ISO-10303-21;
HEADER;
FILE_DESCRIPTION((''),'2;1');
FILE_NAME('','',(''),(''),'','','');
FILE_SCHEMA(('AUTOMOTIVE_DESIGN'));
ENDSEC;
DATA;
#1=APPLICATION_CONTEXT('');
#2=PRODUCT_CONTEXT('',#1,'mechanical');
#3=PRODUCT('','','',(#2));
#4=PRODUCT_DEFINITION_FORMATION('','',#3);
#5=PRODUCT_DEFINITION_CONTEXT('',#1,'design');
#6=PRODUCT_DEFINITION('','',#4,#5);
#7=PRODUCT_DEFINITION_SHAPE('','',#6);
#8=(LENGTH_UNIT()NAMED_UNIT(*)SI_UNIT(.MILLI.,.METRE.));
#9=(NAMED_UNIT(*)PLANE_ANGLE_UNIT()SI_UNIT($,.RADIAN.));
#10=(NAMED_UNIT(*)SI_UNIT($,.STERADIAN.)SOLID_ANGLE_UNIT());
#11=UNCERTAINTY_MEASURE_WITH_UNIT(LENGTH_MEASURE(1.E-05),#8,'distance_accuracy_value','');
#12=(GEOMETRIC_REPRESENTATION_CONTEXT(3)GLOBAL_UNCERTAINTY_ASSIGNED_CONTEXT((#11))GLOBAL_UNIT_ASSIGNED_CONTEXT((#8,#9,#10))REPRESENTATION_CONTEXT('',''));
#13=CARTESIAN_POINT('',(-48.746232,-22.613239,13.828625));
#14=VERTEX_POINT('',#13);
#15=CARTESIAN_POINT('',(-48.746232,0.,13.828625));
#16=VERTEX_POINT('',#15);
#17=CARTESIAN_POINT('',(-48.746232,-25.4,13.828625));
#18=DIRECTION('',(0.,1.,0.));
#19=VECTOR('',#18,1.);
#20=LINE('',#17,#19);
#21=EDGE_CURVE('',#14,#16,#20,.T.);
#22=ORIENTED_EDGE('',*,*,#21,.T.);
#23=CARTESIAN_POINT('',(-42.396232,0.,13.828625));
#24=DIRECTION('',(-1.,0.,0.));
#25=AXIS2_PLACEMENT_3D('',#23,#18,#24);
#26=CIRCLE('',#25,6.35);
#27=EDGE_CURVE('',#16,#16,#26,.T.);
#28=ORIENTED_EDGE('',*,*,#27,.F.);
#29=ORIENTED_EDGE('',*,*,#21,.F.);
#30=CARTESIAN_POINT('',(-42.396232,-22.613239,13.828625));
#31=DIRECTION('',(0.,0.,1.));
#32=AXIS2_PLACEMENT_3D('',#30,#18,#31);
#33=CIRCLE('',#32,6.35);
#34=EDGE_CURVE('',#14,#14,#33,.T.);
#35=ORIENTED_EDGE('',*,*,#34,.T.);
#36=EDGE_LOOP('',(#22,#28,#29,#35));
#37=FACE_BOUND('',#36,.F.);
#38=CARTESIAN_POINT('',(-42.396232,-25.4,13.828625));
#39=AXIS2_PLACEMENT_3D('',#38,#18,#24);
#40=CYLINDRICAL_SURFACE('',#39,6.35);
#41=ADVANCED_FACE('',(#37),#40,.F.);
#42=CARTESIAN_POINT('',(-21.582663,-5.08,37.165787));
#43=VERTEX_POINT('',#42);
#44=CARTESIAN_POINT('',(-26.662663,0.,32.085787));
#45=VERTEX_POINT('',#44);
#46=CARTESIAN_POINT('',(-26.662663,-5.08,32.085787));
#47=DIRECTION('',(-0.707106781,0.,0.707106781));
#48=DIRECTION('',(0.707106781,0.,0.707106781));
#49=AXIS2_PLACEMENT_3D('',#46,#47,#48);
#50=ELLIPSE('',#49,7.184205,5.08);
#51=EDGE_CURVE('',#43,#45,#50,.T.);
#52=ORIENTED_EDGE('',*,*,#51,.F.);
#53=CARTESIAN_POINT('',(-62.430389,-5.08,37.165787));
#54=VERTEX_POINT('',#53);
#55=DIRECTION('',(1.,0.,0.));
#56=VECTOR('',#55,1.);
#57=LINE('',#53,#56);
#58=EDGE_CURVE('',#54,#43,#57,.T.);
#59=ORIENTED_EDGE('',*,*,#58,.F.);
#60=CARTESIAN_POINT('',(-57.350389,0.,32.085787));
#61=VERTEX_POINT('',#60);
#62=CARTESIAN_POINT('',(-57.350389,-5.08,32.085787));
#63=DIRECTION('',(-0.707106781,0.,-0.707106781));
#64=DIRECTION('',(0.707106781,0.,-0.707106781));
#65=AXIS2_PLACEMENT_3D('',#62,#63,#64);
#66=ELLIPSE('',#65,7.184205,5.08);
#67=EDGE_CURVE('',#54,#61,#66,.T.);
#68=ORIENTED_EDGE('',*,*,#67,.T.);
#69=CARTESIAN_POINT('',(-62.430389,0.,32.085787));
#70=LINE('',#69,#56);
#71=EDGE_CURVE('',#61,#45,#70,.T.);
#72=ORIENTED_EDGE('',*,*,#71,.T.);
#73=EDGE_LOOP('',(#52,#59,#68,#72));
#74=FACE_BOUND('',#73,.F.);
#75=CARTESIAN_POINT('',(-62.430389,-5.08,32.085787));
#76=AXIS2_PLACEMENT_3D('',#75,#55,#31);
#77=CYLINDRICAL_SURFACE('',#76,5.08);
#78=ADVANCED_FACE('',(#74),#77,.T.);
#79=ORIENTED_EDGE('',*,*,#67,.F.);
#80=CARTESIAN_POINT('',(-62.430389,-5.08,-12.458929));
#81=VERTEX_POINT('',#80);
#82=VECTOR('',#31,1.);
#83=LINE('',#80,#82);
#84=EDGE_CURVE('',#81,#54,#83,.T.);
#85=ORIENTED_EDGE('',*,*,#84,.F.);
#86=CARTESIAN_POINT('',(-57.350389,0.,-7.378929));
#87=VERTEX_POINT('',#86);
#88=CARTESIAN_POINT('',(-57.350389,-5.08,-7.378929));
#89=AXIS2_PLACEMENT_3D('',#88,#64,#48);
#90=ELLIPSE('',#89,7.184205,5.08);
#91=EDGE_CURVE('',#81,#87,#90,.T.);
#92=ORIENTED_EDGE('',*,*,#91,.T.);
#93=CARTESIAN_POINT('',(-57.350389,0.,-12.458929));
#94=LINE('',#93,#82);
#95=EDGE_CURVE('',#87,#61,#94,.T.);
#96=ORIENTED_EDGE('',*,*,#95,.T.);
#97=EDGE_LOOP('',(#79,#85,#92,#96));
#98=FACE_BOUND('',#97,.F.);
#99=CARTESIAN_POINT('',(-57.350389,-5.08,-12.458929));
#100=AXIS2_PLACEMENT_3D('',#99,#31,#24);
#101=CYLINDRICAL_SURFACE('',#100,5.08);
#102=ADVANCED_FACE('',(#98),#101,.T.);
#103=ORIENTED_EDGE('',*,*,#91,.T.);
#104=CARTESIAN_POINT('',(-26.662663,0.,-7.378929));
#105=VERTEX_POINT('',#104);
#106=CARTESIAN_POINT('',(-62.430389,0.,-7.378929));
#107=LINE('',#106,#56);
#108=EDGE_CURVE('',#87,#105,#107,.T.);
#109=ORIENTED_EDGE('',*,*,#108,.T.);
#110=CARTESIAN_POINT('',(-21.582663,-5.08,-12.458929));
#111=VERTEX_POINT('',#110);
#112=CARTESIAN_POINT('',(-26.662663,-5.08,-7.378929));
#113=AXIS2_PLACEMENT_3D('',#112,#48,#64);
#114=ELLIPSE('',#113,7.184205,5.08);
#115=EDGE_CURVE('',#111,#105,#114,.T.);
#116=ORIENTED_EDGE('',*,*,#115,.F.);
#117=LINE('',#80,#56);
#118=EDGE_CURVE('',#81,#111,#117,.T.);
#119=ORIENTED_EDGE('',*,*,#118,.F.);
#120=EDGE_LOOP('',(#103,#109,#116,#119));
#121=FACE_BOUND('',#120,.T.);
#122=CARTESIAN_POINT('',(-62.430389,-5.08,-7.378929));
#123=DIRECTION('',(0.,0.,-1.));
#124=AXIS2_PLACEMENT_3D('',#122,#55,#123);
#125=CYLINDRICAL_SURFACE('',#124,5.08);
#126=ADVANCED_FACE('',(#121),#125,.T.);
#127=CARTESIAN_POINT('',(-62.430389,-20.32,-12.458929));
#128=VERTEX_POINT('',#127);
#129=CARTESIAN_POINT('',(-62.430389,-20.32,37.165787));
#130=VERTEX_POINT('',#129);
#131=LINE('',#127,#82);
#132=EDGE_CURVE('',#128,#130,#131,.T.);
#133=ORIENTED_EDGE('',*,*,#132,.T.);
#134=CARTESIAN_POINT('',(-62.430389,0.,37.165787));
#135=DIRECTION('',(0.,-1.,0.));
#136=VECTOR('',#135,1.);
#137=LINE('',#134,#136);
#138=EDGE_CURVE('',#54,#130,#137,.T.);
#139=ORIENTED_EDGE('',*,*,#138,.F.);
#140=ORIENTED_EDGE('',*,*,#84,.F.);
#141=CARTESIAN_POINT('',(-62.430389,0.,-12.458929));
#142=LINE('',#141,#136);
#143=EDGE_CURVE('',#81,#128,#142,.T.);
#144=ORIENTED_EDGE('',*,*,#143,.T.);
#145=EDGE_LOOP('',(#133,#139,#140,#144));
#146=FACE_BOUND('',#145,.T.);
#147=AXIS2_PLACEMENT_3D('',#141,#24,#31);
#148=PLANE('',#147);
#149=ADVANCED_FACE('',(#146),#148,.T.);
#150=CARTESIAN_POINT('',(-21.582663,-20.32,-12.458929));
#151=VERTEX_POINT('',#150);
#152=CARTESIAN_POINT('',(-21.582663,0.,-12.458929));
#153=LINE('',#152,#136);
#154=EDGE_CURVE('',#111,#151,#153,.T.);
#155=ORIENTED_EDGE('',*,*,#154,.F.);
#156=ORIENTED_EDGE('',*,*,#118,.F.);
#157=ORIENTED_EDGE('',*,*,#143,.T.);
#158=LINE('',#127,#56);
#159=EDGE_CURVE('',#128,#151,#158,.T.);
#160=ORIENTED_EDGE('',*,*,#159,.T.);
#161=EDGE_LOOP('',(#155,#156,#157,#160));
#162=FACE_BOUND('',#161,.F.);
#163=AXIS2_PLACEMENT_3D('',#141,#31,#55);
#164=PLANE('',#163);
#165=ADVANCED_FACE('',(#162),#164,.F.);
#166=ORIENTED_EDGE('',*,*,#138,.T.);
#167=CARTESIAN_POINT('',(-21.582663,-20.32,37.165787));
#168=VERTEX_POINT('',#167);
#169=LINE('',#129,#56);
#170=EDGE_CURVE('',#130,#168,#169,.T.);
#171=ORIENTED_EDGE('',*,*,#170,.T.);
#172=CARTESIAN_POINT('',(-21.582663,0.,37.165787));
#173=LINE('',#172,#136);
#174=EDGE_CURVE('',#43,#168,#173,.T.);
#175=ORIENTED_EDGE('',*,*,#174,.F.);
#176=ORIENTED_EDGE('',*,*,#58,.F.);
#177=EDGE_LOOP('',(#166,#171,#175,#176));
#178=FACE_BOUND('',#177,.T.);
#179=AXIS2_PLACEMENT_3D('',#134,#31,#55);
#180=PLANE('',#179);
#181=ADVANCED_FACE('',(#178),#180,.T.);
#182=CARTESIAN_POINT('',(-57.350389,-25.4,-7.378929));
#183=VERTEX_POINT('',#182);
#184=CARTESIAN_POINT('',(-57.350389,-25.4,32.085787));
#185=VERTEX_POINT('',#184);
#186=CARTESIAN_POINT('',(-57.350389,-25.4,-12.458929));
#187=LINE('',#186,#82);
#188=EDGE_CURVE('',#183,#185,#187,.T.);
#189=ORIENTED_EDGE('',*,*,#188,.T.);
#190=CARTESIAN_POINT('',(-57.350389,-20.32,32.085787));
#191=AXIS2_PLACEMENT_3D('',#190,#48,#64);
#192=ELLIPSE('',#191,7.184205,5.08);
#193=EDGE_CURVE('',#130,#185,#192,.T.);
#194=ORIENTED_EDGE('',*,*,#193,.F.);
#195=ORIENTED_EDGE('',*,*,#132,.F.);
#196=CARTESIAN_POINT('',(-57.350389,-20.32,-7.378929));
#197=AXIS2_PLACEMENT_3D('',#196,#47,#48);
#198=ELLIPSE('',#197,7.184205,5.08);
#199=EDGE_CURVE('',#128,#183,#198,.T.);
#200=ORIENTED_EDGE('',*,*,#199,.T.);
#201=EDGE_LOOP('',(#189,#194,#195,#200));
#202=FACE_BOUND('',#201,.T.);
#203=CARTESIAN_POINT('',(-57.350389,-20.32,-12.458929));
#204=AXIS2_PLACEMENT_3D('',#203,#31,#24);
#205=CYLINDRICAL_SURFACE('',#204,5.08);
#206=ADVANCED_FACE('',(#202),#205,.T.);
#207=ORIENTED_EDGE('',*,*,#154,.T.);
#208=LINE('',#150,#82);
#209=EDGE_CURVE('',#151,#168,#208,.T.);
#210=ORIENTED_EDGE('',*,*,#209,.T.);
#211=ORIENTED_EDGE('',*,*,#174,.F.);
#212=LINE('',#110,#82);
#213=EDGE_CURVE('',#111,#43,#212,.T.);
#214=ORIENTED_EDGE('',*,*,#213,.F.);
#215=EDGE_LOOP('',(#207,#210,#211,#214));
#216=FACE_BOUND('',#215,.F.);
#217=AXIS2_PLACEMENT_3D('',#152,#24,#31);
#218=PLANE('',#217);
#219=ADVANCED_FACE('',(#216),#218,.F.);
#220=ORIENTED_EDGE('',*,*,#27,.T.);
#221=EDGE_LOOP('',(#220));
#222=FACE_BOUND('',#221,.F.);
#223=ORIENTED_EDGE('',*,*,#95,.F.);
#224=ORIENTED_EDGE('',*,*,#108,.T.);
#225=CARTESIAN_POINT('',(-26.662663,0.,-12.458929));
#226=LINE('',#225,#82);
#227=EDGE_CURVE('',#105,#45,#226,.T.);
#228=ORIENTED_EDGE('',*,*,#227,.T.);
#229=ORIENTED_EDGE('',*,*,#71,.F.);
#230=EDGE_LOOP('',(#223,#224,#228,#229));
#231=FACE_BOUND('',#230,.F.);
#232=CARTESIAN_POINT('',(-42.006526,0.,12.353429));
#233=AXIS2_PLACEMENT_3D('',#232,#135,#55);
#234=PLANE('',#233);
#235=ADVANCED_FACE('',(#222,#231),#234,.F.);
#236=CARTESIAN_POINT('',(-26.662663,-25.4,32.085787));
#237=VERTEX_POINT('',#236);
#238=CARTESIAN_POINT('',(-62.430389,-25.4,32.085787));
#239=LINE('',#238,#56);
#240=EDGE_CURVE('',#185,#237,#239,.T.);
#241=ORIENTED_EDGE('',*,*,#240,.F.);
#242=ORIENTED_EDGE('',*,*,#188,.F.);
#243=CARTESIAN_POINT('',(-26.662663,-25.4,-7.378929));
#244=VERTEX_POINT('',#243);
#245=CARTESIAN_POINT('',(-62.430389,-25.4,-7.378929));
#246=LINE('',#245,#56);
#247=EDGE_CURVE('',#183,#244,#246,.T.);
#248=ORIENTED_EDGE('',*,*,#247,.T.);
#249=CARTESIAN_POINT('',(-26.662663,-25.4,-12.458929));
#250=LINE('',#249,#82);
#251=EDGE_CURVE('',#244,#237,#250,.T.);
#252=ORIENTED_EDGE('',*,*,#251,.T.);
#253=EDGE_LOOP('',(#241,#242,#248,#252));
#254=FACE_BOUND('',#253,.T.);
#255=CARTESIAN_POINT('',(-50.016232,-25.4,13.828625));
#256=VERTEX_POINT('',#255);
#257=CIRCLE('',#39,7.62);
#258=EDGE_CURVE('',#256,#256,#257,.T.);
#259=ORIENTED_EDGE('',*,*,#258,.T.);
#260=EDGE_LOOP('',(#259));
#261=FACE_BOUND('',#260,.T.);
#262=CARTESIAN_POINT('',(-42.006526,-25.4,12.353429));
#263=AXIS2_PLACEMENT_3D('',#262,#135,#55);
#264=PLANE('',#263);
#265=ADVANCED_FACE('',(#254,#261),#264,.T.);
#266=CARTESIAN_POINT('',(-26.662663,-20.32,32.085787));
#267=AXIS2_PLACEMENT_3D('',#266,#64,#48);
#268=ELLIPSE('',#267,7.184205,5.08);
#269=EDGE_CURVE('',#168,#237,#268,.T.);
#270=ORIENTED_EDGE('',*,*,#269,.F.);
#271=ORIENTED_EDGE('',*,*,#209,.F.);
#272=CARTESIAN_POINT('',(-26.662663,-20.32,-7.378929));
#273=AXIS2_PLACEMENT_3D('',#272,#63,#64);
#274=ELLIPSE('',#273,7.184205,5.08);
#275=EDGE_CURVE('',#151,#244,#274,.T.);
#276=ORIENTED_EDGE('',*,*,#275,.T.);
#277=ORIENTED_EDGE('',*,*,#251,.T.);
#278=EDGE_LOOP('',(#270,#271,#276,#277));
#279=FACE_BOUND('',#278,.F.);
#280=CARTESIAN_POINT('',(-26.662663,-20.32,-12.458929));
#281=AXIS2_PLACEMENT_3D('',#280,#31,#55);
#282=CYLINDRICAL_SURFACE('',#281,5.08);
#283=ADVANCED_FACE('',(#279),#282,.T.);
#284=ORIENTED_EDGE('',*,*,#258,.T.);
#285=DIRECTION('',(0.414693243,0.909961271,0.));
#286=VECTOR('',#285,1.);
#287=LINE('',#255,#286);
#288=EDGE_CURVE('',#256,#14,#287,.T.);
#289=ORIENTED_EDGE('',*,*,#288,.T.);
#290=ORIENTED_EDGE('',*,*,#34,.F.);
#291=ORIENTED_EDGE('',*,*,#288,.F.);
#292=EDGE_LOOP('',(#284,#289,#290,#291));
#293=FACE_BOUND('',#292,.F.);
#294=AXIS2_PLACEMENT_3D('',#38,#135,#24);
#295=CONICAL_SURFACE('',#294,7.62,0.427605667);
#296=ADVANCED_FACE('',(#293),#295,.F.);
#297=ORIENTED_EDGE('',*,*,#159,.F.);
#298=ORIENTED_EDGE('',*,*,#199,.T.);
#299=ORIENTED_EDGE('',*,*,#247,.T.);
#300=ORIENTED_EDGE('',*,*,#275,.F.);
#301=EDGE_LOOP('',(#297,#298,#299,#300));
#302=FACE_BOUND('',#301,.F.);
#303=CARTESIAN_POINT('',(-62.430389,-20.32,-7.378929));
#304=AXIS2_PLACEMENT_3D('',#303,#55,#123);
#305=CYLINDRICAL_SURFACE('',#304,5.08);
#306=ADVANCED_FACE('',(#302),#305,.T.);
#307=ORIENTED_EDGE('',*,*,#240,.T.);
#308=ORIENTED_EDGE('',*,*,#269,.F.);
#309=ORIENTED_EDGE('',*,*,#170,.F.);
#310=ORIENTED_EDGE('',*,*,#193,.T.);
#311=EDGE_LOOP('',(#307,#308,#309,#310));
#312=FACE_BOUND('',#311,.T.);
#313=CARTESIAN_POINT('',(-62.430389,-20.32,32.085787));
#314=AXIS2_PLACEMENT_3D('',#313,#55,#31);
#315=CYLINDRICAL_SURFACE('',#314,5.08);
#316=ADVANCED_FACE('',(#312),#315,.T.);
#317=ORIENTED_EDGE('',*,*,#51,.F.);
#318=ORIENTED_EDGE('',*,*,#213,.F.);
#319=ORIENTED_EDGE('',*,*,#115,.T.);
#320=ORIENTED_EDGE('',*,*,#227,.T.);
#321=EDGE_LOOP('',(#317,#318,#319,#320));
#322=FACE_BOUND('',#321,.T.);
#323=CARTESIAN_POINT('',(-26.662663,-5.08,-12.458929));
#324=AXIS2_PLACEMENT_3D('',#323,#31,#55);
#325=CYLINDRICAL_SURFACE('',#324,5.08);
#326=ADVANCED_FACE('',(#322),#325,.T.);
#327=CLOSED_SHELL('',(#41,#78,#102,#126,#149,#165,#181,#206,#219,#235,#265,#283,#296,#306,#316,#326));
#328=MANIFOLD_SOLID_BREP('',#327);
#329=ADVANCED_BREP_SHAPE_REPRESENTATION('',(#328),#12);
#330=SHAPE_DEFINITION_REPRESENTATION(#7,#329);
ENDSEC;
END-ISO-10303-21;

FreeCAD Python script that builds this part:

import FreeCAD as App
import Part
import Sketcher
Q = App.Units.Quantity


def edges_at(feature, points):
    """Names of the edges that pass closest to the given points."""
    edges = feature.Shape.Edges
    near = lambda p: min(range(len(edges)), key=lambda i: edges[i].distToShape(Part.Vertex(*p))[0])
    return sorted({f"Edge{near(p) + 1}" for p in points})


def add_polygon(sketch, points):
    """Adds a closed chain of lines whose ends are joined by coincident constraints."""
    first, n = sketch.GeometryCount, len(points)
    for a, b in zip(points, points[1:] + points[:1]):
        sketch.addGeometry(Part.LineSegment(App.Vector(*a, 0), App.Vector(*b, 0)), False)
    for i in range(n):
        sketch.addConstraint(Sketcher.Constraint("Coincident", first + i, 2, first + (i + 1) % n, 1))

doc = App.newDocument("Part")
body = doc.addObject("PartDesign::Body", "Body")

# Sketch on XZ plane
sketch1 = body.newObject("Sketcher::SketchObject", "Sketch")
sketch1.AttachmentSupport = (doc.getObject("XZ_Plane"), [""])
sketch1.MapMode = "FlatFace"
add_polygon(sketch1, [(-62.430389, 37.165787), (-62.430389, -12.458929), (-21.582663, -12.458929), (-21.582663, 37.165787)])  # lines 0-3
sketch1.addConstraint([
    Sketcher.Constraint("Vertical", 0),
    Sketcher.Constraint("Horizontal", 1),
    Sketcher.Constraint("Vertical", 2),
    Sketcher.Constraint("Horizontal", 3),
    Sketcher.Constraint("DistanceX", 1, 1, 1, 2, Q("40.847726 mm")),
    Sketcher.Constraint("DistanceY", 0, 2, 0, 1, Q("49.624716 mm")),
    Sketcher.Constraint("DistanceX", 0, 2, -1, 1, Q("62.430389 mm")),
    Sketcher.Constraint("DistanceY", 0, 2, -1, 1, Q("12.458929 mm")),
])
pad1 = body.newObject("PartDesign::Pad", "Pad")
pad1.Profile = sketch1
pad1.Length = Q("1 in")
doc.recompute()

fillet = body.newObject("PartDesign::Fillet", "Fillet")
fillet.Base = (pad1, edges_at(pad1, [
    (-42.007, -25.4, 37.166),
    (-62.43, -25.4, 12.353),
    (-42.007, -25.4, -12.459),
    (-21.583, -25.4, 12.353),
    (-42.007, 0, 37.166),
    (-62.43, 0, 12.353),
    (-42.007, 0, -12.459),
    (-21.583, 0, 12.353),
]))
fillet.Radius = Q("0.2 in")

# Sketch on XZ plane
sketch2 = body.newObject("Sketcher::SketchObject", "Sketch001")
sketch2.AttachmentSupport = (doc.getObject("XZ_Plane"), [""])
sketch2.MapMode = "FlatFace"
sketch2.AttachmentOffset = App.Placement(App.Vector(0, 0, 1 * 25.4), App.Rotation())
sketch2.addGeometry(Part.Circle(App.Vector(-42.396232, 13.828625, 0), App.Vector(0, 0, 1), 6.35), False)
sketch2.addConstraint([
    Sketcher.Constraint("Diameter", 0, Q("0.5 in")),
    Sketcher.Constraint("DistanceX", 0, 3, -1, 1, Q("42.396232 mm")),
    Sketcher.Constraint("DistanceY", -1, 1, 0, 3, Q("13.828625 mm")),
])
doc.recompute()
hole = body.newObject("PartDesign::Hole", "Hole")
hole.Profile = sketch2
hole.ThreadType = "None"
hole.Diameter = Q("0.5 in")
hole.DepthType = "ThroughAll"
hole.HoleCutType = "Countersink"
hole.HoleCutDiameter = Q("0.6 in")
hole.HoleCutCountersinkAngle = 49

doc.recompute()
